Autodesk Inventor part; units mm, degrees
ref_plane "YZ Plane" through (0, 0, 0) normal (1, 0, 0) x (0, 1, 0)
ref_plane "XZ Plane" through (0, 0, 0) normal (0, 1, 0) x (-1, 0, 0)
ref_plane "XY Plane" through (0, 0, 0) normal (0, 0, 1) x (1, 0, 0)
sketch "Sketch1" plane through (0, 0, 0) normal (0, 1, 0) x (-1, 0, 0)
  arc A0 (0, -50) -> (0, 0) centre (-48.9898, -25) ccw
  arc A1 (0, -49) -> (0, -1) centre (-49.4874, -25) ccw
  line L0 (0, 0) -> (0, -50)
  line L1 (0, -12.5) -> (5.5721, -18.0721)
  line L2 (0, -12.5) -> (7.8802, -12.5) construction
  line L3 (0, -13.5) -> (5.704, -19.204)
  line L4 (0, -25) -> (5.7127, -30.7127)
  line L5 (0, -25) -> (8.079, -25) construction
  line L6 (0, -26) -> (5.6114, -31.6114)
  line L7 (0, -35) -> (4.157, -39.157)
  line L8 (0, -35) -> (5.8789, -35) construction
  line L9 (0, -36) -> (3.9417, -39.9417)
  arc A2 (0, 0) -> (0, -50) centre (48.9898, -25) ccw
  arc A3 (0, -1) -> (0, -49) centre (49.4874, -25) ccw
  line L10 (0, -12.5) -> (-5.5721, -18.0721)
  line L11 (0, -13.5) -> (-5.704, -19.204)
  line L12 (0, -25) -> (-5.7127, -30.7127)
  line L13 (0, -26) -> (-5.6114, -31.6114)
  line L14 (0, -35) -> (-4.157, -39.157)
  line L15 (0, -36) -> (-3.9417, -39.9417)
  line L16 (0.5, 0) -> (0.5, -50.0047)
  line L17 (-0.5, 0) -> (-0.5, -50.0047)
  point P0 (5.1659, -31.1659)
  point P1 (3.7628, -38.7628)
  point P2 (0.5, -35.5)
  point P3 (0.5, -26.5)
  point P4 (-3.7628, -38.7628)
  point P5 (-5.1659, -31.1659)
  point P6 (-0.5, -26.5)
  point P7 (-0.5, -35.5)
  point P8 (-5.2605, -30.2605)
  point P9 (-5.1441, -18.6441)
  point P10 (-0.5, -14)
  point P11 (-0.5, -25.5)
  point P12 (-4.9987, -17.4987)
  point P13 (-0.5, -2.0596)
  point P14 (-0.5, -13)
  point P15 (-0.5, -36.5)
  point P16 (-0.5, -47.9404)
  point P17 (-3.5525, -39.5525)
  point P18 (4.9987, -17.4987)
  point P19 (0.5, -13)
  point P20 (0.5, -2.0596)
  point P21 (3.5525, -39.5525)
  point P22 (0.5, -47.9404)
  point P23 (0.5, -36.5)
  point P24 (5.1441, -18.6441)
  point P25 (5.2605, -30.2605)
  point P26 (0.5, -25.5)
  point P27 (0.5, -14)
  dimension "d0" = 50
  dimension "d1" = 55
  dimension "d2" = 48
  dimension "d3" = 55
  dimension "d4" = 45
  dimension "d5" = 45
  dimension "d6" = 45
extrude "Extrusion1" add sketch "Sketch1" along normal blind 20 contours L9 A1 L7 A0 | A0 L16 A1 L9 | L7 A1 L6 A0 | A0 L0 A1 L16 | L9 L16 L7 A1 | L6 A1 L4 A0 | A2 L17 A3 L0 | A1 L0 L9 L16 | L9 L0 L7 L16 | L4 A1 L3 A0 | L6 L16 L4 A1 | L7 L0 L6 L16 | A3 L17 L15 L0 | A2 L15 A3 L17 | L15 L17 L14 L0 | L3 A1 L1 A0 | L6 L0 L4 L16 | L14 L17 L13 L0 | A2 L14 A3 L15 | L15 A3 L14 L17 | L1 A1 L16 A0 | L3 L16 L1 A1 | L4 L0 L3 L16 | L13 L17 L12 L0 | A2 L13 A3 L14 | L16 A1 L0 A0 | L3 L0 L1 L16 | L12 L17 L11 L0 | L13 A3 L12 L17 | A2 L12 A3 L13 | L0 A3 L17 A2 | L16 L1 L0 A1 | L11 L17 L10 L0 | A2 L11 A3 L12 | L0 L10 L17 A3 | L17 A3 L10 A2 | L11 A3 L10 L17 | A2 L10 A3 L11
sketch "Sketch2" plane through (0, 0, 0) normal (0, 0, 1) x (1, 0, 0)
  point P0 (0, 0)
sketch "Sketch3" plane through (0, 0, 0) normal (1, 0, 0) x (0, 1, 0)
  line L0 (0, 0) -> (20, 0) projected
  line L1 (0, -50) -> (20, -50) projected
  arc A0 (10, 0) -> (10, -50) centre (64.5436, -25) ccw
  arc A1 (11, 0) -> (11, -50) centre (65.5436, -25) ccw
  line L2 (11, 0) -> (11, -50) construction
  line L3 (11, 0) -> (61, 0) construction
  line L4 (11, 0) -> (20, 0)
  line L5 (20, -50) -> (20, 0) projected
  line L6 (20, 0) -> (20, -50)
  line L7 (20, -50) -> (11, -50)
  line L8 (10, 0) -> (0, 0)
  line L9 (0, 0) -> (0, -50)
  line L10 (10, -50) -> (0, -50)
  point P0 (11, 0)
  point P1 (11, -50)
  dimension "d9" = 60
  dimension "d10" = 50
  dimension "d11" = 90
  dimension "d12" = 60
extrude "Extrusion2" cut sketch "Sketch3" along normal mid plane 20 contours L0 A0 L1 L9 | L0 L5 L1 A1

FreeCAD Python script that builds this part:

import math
import FreeCAD as App
import Part
import Sketcher
from FreeCAD import Vector

doc = App.newDocument("Part")
body = doc.addObject("PartDesign::Body", "Body")

# Sketch on XZ plane
sketch1 = body.newObject("Sketcher::SketchObject", "Sketch")
sketch1.AttachmentSupport = (doc.getObject("XZ_Plane"), [""])
sketch1.MapMode = "FlatFace"
sketch1.addGeometry([
    Part.ArcOfCircle(Part.Circle(Vector(-49, -25, 0), Vector(0, 0, 1), 55), math.radians(-27), math.radians(27)),  # 0
    Part.ArcOfCircle(Part.Circle(Vector(49, -25, 0), Vector(0, 0, 1), 55), math.radians(153), math.radians(207)),  # 1
    Part.ArcOfCircle(Part.Circle(Vector(49.5, -25, 0), Vector(0, 0, 1), 55), math.radians(-164.66), math.radians(-155.35)),  # 2
    Part.LineSegment(Vector(-0.5, -47.9, 0), Vector(-0.5, -36.5, 0)),  # 3
    Part.LineSegment(Vector(-0.5, -36.5, 0), Vector(-3.6, -39.6, 0)),  # 4
    Part.LineSegment(Vector(-3.8, -38.8, 0), Vector(-0.5, -35.5, 0)),  # 5
    Part.LineSegment(Vector(-0.5, -35.5, 0), Vector(-0.5, -26.5, 0)),  # 6
    Part.LineSegment(Vector(-0.5, -26.5, 0), Vector(-5.2, -31.2, 0)),  # 7
    Part.ArcOfCircle(Part.Circle(Vector(49.5, -25, 0), Vector(0, 0, 1), 55), math.radians(-173.56), math.radians(-165.51)),  # 8
    Part.LineSegment(Vector(-5.3, -30.3, 0), Vector(-0.5, -25.5, 0)),  # 9
    Part.LineSegment(Vector(-0.5, -25.5, 0), Vector(-0.5, -14, 0)),  # 10
    Part.LineSegment(Vector(-0.5, -14, 0), Vector(-5.1, -18.6, 0)),  # 11
    Part.ArcOfCircle(Part.Circle(Vector(49.5, -25, 0), Vector(0, 0, 1), 55), math.radians(173.36), math.radians(185.49)),  # 12
    Part.ArcOfCircle(Part.Circle(Vector(-49.5, -25, 0), Vector(0, 0, 1), 55), math.radians(-24.65), math.radians(-15.34)),  # 13
    Part.LineSegment(Vector(3.6, -39.6, 0), Vector(0.5, -36.5, 0)),  # 14
    Part.LineSegment(Vector(0.5, -36.5, 0), Vector(0.5, -47.9, 0)),  # 15
    Part.LineSegment(Vector(0.5, -35.5, 0), Vector(3.8, -38.8, 0)),  # 16
    Part.ArcOfCircle(Part.Circle(Vector(-49.5, -25, 0), Vector(0, 0, 1), 55), math.radians(-14.49), math.radians(-6.44)),  # 17
    Part.LineSegment(Vector(5.2, -31.2, 0), Vector(0.5, -26.5, 0)),  # 18
    Part.LineSegment(Vector(0.5, -26.5, 0), Vector(0.5, -35.5, 0)),  # 19
    Part.LineSegment(Vector(-5, -17.5, 0), Vector(-0.5, -13, 0)),  # 20
    Part.LineSegment(Vector(-0.5, -13, 0), Vector(-0.5, -2.1, 0)),  # 21
    Part.ArcOfCircle(Part.Circle(Vector(49.5, -25, 0), Vector(0, 0, 1), 55), math.radians(155.35), math.radians(172.16)),  # 22
    Part.LineSegment(Vector(0.5, -14, 0), Vector(0.5, -25.5, 0)),  # 23
    Part.LineSegment(Vector(0.5, -25.5, 0), Vector(5.3, -30.3, 0)),  # 24
    Part.ArcOfCircle(Part.Circle(Vector(-49.5, -25, 0), Vector(0, 0, 1), 55), math.radians(-5.49), math.radians(6.64)),  # 25
    Part.LineSegment(Vector(5.1, -18.6, 0), Vector(0.5, -14, 0)),  # 26
    Part.LineSegment(Vector(0.5, -2.1, 0), Vector(0.5, -13, 0)),  # 27
    Part.LineSegment(Vector(0.5, -13, 0), Vector(5, -17.5, 0)),  # 28
    Part.ArcOfCircle(Part.Circle(Vector(-49.5, -25, 0), Vector(0, 0, 1), 55), math.radians(7.84), math.radians(24.65)),  # 29
], False)
sketch1.addConstraint([
    Sketcher.Constraint("Coincident", 0, 1, 1, 2),
    Sketcher.Constraint("Coincident", 1, 1, 0, 2),
    Sketcher.Constraint("Coincident", 2, 2, 3, 1),
    Sketcher.Constraint("Coincident", 3, 2, 4, 1),
    Sketcher.Constraint("Coincident", 4, 2, 2, 1),
    Sketcher.Constraint("Coincident", 5, 2, 6, 1),
    Sketcher.Constraint("Coincident", 6, 2, 7, 1),
    Sketcher.Constraint("Coincident", 7, 2, 8, 1),
    Sketcher.Constraint("Coincident", 8, 2, 5, 1),
    Sketcher.Constraint("Coincident", 9, 2, 10, 1),
    Sketcher.Constraint("Coincident", 10, 2, 11, 1),
    Sketcher.Constraint("Coincident", 11, 2, 12, 1),
    Sketcher.Constraint("Coincident", 12, 2, 9, 1),
    Sketcher.Constraint("Coincident", 13, 2, 14, 1),
    Sketcher.Constraint("Coincident", 14, 2, 15, 1),
    Sketcher.Constraint("Coincident", 15, 2, 13, 1),
    Sketcher.Constraint("Coincident", 16, 2, 17, 1),
    Sketcher.Constraint("Coincident", 17, 2, 18, 1),
    Sketcher.Constraint("Coincident", 18, 2, 19, 1),
    Sketcher.Constraint("Coincident", 19, 2, 16, 1),
    Sketcher.Constraint("Coincident", 20, 2, 21, 1),
    Sketcher.Constraint("Coincident", 21, 2, 22, 1),
    Sketcher.Constraint("Coincident", 22, 2, 20, 1),
    Sketcher.Constraint("Coincident", 23, 2, 24, 1),
    Sketcher.Constraint("Coincident", 24, 2, 25, 1),
    Sketcher.Constraint("Coincident", 25, 2, 26, 1),
    Sketcher.Constraint("Coincident", 26, 2, 23, 1),
    Sketcher.Constraint("Coincident", 27, 2, 28, 1),
    Sketcher.Constraint("Coincident", 28, 2, 29, 1),
    Sketcher.Constraint("Coincident", 29, 2, 27, 1),
    Sketcher.Constraint("Vertical", 3),
    Sketcher.Constraint("Vertical", 6),
    Sketcher.Constraint("Vertical", 10),
    Sketcher.Constraint("Vertical", 15),
    Sketcher.Constraint("Vertical", 19),
    Sketcher.Constraint("Vertical", 21),
    Sketcher.Constraint("Vertical", 23),
    Sketcher.Constraint("Vertical", 27),
    Sketcher.Constraint("Coincident", 1, 1, -1, 1),
    Sketcher.Constraint("Coincident", 8, 3, 2, 3),
    Sketcher.Constraint("Coincident", 12, 3, 2, 3),
    Sketcher.Constraint("Coincident", 17, 3, 13, 3),
    Sketcher.Constraint("Coincident", 22, 3, 2, 3),
    Sketcher.Constraint("Coincident", 25, 3, 13, 3),
    Sketcher.Constraint("Coincident", 29, 3, 13, 3),
    Sketcher.Constraint("Equal", 0, 1),
    Sketcher.Constraint("Equal", 1, 2),
    Sketcher.Constraint("Equal", 2, 8),
    Sketcher.Constraint("Equal", 8, 12),
    Sketcher.Constraint("Equal", 12, 13),
    Sketcher.Constraint("Equal", 13, 17),
    Sketcher.Constraint("Equal", 17, 22),
    Sketcher.Constraint("Equal", 22, 25),
    Sketcher.Constraint("Equal", 25, 29),
    Sketcher.Constraint("Symmetric", 2, 3, 13, 3, -2),
    Sketcher.Constraint("Symmetric", 3, 2, 14, 2, -2),
    Sketcher.Constraint("Symmetric", 6, 2, 18, 2, -2),
    Sketcher.Constraint("Symmetric", 9, 2, 23, 2, -2),
    Sketcher.Constraint("Symmetric", 20, 2, 27, 2, -2),
    Sketcher.Constraint("PointOnObject", 0, 1, -2),
    Sketcher.Constraint("Parallel", 4, 5),
    Sketcher.Constraint("Parallel", 5, 7),
    Sketcher.Constraint("Parallel", 7, 9),
    Sketcher.Constraint("Parallel", 9, 11),
    Sketcher.Constraint("Perpendicular", 11, 14),
    Sketcher.Constraint("Parallel", 14, 16),
    Sketcher.Constraint("Parallel", 16, 18),
    Sketcher.Constraint("Perpendicular", 18, 20),
    Sketcher.Constraint("Perpendicular", 20, 24),
    Sketcher.Constraint("Parallel", 24, 26),
    Sketcher.Constraint("Parallel", 26, 28),
    Sketcher.Constraint("Horizontal", 1, 3, 2, 3),
    Sketcher.Constraint("Horizontal", 4, 2, 13, 2),
    Sketcher.Constraint("Horizontal", 8, 2, 16, 2),
    Sketcher.Constraint("Horizontal", 11, 2, 25, 2),
    Sketcher.Constraint("Vertical", 3, 2, 5, 2),
    Sketcher.Constraint("Vertical", 6, 2, 9, 2),
    Sketcher.Constraint("Vertical", 10, 2, 20, 2),
    Sketcher.Constraint("Radius", 0, 55.0),
    Sketcher.Constraint("DistanceY", 0, 1, -1, 1, 50.0),
    Sketcher.Constraint("DistanceY", 6, 1, 6, 2, 9.0),
    Sketcher.Constraint("DistanceY", 10, 1, 10, 2, 11.5),
    Sketcher.Constraint("DistanceY", 10, 2, -1, 1, 14.0),
    Sketcher.Constraint("DistanceY", 20, 2, -1, 1, 13.0),
    Sketcher.Constraint("DistanceY", 3, 2, 5, 2, 1.0),
    Sketcher.Constraint("DistanceY", 6, 2, 9, 2, 1.0),
    Sketcher.Constraint("DistanceX", 3, 2, 14, 2, 1.0),
    Sketcher.Constraint("Distance", 20, 6.362),
])
pad1 = body.newObject("PartDesign::Pad", "Pad")
pad1.Profile = sketch1
pad1.Length = 20
pad1.Reversed = True

# Sketch on YZ plane
sketch2 = body.newObject("Sketcher::SketchObject", "Sketch001")
sketch2.AttachmentSupport = (doc.getObject("YZ_Plane"), [""])
sketch2.MapMode = "FlatFace"
sketch2.addGeometry([
    Part.LineSegment(Vector(10, 0, 0), Vector(0, 0, 0)),  # 0
    Part.LineSegment(Vector(0, 0, 0), Vector(0, -50, 0)),  # 1
    Part.LineSegment(Vector(0, -50, 0), Vector(10, -50, 0)),  # 2
    Part.ArcOfCircle(Part.Circle(Vector(65, -25, 0), Vector(0, 0, 1), 60), math.radians(155), math.radians(205)),  # 3
    Part.LineSegment(Vector(20, 0, 0), Vector(11, 0, 0)),  # 4
    Part.ArcOfCircle(Part.Circle(Vector(66, -25, 0), Vector(0, 0, 1), 60), math.radians(155), math.radians(205)),  # 5
    Part.LineSegment(Vector(11, -50, 0), Vector(20, -50, 0)),  # 6
    Part.LineSegment(Vector(20, -50, 0), Vector(20, 0, 0)),  # 7
], False)
sketch2.addConstraint([
    Sketcher.Constraint("Coincident", 0, 2, 1, 1),
    Sketcher.Constraint("Coincident", 1, 2, 2, 1),
    Sketcher.Constraint("Coincident", 2, 2, 3, 2),
    Sketcher.Constraint("Coincident", 3, 1, 0, 1),
    Sketcher.Constraint("Coincident", 4, 2, 5, 1),
    Sketcher.Constraint("Coincident", 5, 2, 6, 1),
    Sketcher.Constraint("Coincident", 6, 2, 7, 1),
    Sketcher.Constraint("Coincident", 7, 2, 4, 1),
    Sketcher.Constraint("Horizontal", 0),
    Sketcher.Constraint("Vertical", 1),
    Sketcher.Constraint("Horizontal", 2),
    Sketcher.Constraint("Horizontal", 4),
    Sketcher.Constraint("Horizontal", 6),
    Sketcher.Constraint("Vertical", 7),
    Sketcher.Constraint("Coincident", 0, 2, -1, 1),
    Sketcher.Constraint("Equal", 3, 5),
    Sketcher.Constraint("PointOnObject", 4, 2, -1),
    Sketcher.Constraint("Horizontal", 3, 3, 5, 3),
    Sketcher.Constraint("Horizontal", 2, 2, 5, 2),
    Sketcher.Constraint("Vertical", 2, 2, 3, 1),
    Sketcher.Constraint("Radius", 3, 60.0),
    Sketcher.Constraint("DistanceY", 1, 2, 1, 1, 50.0),
    Sketcher.Constraint("DistanceX", 0, 2, 0, 1, 10.0),
    Sketcher.Constraint("DistanceX", 4, 2, 4, 1, 9.0),
    Sketcher.Constraint("DistanceX", -1, 1, 4, 2, 11.0),
])
pocket1 = body.newObject("PartDesign::Pocket", "Pocket")
pocket1.Profile = sketch2
pocket1.Length = 20
pocket1.Midplane = True

doc.recompute()
